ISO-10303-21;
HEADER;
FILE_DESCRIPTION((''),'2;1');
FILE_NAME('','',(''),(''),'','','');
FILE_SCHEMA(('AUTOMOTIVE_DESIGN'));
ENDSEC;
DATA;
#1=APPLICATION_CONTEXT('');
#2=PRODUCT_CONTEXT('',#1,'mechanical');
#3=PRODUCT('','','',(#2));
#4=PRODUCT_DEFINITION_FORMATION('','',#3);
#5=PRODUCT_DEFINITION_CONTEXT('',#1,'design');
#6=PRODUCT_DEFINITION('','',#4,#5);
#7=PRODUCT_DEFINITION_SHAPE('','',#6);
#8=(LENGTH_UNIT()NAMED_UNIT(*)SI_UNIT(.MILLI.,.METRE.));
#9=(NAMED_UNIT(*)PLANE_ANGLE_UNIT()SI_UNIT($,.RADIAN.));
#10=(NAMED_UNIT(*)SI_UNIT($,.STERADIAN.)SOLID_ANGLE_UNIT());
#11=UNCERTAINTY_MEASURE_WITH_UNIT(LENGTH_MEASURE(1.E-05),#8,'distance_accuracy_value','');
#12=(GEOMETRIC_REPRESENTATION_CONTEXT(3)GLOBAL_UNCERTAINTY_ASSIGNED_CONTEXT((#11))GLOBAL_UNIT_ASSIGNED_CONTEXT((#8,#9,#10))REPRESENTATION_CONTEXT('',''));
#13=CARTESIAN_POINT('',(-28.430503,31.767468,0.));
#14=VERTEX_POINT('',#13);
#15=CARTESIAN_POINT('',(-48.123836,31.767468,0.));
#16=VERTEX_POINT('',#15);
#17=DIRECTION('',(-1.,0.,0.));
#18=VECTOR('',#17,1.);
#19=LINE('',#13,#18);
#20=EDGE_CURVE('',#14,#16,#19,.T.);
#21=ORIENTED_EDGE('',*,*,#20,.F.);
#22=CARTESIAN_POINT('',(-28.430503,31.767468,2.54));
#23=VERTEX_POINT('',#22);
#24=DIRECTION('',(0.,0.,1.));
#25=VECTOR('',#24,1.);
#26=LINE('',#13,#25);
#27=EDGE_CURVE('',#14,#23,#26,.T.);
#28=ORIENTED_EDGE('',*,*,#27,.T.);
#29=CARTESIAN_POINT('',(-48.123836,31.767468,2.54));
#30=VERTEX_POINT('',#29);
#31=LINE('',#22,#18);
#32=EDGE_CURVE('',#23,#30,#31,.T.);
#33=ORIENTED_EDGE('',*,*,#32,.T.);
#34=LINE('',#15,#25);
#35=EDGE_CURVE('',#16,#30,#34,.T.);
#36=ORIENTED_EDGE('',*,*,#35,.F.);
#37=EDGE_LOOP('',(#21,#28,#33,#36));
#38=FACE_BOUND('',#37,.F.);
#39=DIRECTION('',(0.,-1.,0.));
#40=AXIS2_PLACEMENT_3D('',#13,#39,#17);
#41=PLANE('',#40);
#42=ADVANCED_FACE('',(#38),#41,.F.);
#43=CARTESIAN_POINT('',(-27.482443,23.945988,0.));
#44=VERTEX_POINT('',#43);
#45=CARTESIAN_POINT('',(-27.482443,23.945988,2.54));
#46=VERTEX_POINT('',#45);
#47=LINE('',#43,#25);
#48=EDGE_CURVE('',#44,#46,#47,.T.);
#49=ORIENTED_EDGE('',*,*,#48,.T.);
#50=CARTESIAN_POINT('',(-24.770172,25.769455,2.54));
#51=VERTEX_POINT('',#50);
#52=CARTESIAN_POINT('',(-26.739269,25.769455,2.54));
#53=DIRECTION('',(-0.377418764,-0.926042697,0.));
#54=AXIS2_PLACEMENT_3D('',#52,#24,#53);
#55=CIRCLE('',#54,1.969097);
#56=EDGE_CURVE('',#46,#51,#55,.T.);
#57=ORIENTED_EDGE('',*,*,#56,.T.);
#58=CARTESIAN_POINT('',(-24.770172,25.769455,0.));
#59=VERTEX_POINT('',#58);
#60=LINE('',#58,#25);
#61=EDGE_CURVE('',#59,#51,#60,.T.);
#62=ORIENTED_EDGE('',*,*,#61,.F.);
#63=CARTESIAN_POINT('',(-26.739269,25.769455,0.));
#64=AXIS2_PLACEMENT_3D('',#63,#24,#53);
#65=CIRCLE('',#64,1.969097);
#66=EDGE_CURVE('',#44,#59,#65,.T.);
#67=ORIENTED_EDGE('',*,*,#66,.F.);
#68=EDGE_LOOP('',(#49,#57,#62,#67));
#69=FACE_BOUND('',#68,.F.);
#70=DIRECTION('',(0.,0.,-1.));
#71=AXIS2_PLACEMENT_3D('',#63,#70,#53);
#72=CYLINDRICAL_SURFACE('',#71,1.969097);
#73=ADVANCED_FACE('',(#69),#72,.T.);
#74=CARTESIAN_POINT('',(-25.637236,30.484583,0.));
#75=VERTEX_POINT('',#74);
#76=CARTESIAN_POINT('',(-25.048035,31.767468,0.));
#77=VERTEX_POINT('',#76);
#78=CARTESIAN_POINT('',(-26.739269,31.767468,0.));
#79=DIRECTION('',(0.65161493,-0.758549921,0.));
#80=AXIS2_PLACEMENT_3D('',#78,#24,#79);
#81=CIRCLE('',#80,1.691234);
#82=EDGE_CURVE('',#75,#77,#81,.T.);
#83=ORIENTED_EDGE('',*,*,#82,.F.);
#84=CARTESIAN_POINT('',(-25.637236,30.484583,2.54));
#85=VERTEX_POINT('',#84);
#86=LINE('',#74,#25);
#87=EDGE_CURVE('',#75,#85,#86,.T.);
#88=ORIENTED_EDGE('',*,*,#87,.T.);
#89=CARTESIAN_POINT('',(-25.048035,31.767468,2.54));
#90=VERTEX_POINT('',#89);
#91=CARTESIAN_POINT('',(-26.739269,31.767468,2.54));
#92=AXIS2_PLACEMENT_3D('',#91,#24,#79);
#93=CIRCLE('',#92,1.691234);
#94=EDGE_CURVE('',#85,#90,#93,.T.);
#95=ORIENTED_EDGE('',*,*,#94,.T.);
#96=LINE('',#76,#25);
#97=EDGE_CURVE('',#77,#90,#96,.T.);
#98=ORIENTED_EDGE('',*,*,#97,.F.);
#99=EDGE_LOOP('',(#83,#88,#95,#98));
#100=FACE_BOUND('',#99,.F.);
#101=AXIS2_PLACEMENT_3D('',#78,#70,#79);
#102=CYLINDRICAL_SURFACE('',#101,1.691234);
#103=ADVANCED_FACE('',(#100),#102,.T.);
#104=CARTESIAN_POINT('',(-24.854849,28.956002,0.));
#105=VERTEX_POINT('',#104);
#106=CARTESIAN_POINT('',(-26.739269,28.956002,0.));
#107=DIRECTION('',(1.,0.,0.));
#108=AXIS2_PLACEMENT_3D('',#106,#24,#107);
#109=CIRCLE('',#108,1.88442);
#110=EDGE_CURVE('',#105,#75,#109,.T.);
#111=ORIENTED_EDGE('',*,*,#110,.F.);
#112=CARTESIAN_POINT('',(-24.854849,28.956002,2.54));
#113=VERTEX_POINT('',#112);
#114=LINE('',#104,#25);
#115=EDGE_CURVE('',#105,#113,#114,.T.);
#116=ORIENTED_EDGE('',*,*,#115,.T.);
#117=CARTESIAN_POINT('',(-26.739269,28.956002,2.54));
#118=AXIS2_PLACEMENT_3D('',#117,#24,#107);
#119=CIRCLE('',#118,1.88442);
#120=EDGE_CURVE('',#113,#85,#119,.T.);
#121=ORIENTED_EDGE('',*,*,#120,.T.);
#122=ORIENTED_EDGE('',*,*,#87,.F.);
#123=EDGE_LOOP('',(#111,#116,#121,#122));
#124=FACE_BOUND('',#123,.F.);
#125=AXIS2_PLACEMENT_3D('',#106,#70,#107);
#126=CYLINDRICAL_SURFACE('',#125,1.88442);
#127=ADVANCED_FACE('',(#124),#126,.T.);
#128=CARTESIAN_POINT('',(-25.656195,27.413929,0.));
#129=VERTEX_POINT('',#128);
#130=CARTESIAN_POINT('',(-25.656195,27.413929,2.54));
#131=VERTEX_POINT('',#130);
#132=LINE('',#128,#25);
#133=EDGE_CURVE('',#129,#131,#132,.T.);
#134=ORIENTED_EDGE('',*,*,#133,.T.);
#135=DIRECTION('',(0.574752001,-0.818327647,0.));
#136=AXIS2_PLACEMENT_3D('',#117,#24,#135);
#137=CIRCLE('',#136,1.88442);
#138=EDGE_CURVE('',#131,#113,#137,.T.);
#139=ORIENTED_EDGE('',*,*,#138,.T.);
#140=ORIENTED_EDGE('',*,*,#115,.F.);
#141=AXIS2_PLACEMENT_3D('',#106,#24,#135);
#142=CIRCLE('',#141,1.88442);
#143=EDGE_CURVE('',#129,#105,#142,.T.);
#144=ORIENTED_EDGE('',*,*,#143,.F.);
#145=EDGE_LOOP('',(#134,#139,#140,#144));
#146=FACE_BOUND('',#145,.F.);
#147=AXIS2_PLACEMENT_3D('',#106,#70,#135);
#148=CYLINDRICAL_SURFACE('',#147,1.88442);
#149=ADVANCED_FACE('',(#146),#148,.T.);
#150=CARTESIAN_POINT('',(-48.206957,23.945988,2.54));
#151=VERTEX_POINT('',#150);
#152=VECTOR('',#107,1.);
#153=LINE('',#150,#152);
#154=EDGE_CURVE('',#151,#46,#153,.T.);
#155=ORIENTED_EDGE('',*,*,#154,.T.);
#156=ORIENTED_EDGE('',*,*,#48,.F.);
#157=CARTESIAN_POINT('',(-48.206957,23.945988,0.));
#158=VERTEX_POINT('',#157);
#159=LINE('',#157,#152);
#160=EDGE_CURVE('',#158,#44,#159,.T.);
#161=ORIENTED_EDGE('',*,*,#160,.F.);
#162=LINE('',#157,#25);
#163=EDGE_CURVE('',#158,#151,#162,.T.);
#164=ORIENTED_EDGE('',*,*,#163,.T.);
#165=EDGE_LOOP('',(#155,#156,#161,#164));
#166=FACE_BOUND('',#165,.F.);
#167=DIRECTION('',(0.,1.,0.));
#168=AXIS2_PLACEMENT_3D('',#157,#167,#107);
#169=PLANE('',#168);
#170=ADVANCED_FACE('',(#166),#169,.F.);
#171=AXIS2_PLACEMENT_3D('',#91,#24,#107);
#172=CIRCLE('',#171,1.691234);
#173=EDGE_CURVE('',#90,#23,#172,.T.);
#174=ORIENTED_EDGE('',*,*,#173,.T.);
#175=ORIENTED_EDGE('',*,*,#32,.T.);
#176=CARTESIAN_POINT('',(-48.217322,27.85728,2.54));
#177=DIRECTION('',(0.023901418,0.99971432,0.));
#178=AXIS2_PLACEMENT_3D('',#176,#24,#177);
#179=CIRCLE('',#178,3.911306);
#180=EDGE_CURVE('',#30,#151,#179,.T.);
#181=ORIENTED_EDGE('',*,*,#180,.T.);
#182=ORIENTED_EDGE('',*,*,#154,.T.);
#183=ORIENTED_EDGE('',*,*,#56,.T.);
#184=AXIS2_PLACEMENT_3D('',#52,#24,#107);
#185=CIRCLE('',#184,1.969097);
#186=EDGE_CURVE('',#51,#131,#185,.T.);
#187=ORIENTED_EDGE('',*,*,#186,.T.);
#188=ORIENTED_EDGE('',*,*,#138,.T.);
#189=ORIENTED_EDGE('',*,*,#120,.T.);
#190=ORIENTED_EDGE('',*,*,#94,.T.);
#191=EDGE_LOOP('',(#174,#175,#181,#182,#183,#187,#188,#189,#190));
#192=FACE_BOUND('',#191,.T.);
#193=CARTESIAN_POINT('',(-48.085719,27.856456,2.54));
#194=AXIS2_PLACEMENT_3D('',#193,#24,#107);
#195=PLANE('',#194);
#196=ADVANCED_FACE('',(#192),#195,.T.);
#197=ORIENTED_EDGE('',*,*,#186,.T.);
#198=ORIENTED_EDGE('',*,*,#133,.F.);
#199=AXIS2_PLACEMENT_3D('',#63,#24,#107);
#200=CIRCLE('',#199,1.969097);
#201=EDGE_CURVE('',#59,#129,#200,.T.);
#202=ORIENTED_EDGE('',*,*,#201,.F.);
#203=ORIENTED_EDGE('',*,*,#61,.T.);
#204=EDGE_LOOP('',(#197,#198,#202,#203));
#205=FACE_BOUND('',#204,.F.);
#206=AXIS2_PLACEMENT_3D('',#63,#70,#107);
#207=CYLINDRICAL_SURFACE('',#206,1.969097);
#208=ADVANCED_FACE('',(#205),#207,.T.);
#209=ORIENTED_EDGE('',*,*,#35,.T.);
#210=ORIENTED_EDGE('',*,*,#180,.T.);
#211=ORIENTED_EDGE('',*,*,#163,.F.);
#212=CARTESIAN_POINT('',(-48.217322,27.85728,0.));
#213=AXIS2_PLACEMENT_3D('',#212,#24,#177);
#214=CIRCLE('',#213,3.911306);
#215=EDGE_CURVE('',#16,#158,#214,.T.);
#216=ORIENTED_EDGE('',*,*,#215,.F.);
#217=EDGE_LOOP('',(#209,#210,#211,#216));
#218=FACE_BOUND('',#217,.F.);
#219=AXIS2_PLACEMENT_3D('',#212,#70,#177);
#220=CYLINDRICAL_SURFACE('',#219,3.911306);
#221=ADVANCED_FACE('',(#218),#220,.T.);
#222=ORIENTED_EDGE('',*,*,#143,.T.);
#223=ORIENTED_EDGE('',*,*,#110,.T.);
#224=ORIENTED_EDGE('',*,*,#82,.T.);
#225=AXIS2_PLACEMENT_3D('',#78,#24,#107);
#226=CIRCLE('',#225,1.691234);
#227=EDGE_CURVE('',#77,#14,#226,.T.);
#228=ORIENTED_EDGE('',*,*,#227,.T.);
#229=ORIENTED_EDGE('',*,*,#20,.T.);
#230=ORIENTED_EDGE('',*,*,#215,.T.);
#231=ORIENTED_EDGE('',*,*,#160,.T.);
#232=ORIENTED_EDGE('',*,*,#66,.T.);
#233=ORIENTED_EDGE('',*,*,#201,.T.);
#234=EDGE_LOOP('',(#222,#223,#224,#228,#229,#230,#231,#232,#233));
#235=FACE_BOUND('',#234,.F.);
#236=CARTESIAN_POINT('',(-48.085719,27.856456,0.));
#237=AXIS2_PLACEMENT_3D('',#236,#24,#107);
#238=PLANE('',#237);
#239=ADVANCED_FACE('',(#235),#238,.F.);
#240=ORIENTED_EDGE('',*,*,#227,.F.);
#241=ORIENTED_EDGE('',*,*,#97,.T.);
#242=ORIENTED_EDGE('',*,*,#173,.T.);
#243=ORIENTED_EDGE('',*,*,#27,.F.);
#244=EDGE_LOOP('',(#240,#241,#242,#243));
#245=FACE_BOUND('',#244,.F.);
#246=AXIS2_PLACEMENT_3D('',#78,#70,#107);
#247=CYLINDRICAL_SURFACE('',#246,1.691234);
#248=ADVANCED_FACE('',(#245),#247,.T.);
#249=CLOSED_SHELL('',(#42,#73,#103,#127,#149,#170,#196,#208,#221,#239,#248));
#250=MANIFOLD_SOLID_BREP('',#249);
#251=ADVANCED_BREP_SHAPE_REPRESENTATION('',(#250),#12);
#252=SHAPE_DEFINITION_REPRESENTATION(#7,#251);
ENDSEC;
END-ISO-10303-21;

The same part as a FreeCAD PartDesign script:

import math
import FreeCAD as App
import Part
import Sketcher
Q = App.Units.Quantity

doc = App.newDocument("Part")
body = doc.addObject("PartDesign::Body", "Body")

# Sketch on XY plane
sketch1 = body.newObject("Sketcher::SketchObject", "Sketch")
sketch1.AttachmentSupport = (doc.getObject("XY_Plane"), [""])
sketch1.MapMode = "FlatFace"
sketch1.addGeometry([
    Part.ArcOfCircle(Part.Circle(App.Vector(-26.7, 25.8, 0), App.Vector(0, 0, 1), 2), math.radians(0), math.radians(57)),  # 0
    Part.ArcOfCircle(Part.Circle(App.Vector(-26.7, 29, 0), App.Vector(0, 0, 1), 1.9), math.radians(-55), math.radians(0)),  # 1
    Part.ArcOfCircle(Part.Circle(App.Vector(-26.7, 29, 0), App.Vector(0, 0, 1), 1.9), math.radians(0), math.radians(54)),  # 2
    Part.ArcOfCircle(Part.Circle(App.Vector(-26.7, 31.8, 0), App.Vector(0, 0, 1), 1.7), math.radians(-49), math.radians(0)),  # 3
    Part.ArcOfCircle(Part.Circle(App.Vector(-26.7, 31.8, 0), App.Vector(0, 0, 1), 1.7), math.radians(0), math.radians(180)),  # 4
    Part.LineSegment(App.Vector(-28.4, 31.8, 0), App.Vector(-48.1, 31.8, 0)),  # 5
    Part.ArcOfCircle(Part.Circle(App.Vector(-48.2, 27.9, 0), App.Vector(0, 0, 1), 3.9), math.radians(89), math.radians(270)),  # 6
    Part.LineSegment(App.Vector(-48.2, 23.9, 0), App.Vector(-27.5, 23.9, 0)),  # 7
    Part.ArcOfCircle(Part.Circle(App.Vector(-26.7, 25.8, 0), App.Vector(0, 0, 1), 2), math.radians(-112), math.radians(0)),  # 8
], False)
sketch1.addConstraint([
    Sketcher.Constraint("Coincident", 0, 2, 1, 1),
    Sketcher.Constraint("Tangent", 1, 2, 2, 1),
    Sketcher.Constraint("Coincident", 2, 2, 3, 1),
    Sketcher.Constraint("Tangent", 3, 2, 4, 1),
    Sketcher.Constraint("Coincident", 4, 2, 5, 1),
    Sketcher.Constraint("Coincident", 5, 2, 6, 1),
    Sketcher.Constraint("Coincident", 6, 2, 7, 1),
    Sketcher.Constraint("Coincident", 7, 2, 8, 1),
    Sketcher.Constraint("Tangent", 8, 2, 0, 1),
    Sketcher.Constraint("Horizontal", 5),
    Sketcher.Constraint("Horizontal", 7),
    Sketcher.Constraint("Equal", 1, 2),
    Sketcher.Constraint("Equal", 3, 4),
    Sketcher.Constraint("Equal", 0, 8),
    Sketcher.Constraint("Horizontal", 2, 3, 1, 2),
    Sketcher.Constraint("Horizontal", 4, 3, 3, 2),
    Sketcher.Constraint("Horizontal", 3, 2, 4, 2),
    Sketcher.Constraint("Horizontal", 0, 3, 8, 2),
    Sketcher.Constraint("Vertical", 0, 3, 1, 3),
    Sketcher.Constraint("Vertical", 2, 3, 3, 3),
    Sketcher.Constraint("DistanceY", -1, 1, 1, 3, Q("1.1400001 in")),
    Sketcher.Constraint("Radius", 1, Q("1.88442 mm")),
    Sketcher.Constraint("Radius", 0, Q("1.969097 mm")),
    Sketcher.Constraint("Radius", 3, Q("1.691234 mm")),
    Sketcher.Constraint("Radius", 6, Q("3.911306 mm")),
    Sketcher.Constraint("DistanceX", 2, 2, 3, 2, Q("0.589201 mm")),
    Sketcher.Constraint("DistanceX", 5, 2, 5, 1, Q("19.693333 mm")),
    Sketcher.Constraint("DistanceX", 7, 1, 7, 2, Q("20.724514 mm")),
    Sketcher.Constraint("DistanceX", 0, 3, -1, 1, Q("26.739269 mm")),
    Sketcher.Constraint("DistanceX", 6, 3, -1, 1, Q("48.217322 mm")),
    Sketcher.Constraint("DistanceY", -1, 1, 0, 2, Q("27.413929 mm")),
])
pad1 = body.newObject("PartDesign::Pad", "Pad")
pad1.Profile = sketch1
pad1.Length = Q("0.1 in")

doc.recompute()
